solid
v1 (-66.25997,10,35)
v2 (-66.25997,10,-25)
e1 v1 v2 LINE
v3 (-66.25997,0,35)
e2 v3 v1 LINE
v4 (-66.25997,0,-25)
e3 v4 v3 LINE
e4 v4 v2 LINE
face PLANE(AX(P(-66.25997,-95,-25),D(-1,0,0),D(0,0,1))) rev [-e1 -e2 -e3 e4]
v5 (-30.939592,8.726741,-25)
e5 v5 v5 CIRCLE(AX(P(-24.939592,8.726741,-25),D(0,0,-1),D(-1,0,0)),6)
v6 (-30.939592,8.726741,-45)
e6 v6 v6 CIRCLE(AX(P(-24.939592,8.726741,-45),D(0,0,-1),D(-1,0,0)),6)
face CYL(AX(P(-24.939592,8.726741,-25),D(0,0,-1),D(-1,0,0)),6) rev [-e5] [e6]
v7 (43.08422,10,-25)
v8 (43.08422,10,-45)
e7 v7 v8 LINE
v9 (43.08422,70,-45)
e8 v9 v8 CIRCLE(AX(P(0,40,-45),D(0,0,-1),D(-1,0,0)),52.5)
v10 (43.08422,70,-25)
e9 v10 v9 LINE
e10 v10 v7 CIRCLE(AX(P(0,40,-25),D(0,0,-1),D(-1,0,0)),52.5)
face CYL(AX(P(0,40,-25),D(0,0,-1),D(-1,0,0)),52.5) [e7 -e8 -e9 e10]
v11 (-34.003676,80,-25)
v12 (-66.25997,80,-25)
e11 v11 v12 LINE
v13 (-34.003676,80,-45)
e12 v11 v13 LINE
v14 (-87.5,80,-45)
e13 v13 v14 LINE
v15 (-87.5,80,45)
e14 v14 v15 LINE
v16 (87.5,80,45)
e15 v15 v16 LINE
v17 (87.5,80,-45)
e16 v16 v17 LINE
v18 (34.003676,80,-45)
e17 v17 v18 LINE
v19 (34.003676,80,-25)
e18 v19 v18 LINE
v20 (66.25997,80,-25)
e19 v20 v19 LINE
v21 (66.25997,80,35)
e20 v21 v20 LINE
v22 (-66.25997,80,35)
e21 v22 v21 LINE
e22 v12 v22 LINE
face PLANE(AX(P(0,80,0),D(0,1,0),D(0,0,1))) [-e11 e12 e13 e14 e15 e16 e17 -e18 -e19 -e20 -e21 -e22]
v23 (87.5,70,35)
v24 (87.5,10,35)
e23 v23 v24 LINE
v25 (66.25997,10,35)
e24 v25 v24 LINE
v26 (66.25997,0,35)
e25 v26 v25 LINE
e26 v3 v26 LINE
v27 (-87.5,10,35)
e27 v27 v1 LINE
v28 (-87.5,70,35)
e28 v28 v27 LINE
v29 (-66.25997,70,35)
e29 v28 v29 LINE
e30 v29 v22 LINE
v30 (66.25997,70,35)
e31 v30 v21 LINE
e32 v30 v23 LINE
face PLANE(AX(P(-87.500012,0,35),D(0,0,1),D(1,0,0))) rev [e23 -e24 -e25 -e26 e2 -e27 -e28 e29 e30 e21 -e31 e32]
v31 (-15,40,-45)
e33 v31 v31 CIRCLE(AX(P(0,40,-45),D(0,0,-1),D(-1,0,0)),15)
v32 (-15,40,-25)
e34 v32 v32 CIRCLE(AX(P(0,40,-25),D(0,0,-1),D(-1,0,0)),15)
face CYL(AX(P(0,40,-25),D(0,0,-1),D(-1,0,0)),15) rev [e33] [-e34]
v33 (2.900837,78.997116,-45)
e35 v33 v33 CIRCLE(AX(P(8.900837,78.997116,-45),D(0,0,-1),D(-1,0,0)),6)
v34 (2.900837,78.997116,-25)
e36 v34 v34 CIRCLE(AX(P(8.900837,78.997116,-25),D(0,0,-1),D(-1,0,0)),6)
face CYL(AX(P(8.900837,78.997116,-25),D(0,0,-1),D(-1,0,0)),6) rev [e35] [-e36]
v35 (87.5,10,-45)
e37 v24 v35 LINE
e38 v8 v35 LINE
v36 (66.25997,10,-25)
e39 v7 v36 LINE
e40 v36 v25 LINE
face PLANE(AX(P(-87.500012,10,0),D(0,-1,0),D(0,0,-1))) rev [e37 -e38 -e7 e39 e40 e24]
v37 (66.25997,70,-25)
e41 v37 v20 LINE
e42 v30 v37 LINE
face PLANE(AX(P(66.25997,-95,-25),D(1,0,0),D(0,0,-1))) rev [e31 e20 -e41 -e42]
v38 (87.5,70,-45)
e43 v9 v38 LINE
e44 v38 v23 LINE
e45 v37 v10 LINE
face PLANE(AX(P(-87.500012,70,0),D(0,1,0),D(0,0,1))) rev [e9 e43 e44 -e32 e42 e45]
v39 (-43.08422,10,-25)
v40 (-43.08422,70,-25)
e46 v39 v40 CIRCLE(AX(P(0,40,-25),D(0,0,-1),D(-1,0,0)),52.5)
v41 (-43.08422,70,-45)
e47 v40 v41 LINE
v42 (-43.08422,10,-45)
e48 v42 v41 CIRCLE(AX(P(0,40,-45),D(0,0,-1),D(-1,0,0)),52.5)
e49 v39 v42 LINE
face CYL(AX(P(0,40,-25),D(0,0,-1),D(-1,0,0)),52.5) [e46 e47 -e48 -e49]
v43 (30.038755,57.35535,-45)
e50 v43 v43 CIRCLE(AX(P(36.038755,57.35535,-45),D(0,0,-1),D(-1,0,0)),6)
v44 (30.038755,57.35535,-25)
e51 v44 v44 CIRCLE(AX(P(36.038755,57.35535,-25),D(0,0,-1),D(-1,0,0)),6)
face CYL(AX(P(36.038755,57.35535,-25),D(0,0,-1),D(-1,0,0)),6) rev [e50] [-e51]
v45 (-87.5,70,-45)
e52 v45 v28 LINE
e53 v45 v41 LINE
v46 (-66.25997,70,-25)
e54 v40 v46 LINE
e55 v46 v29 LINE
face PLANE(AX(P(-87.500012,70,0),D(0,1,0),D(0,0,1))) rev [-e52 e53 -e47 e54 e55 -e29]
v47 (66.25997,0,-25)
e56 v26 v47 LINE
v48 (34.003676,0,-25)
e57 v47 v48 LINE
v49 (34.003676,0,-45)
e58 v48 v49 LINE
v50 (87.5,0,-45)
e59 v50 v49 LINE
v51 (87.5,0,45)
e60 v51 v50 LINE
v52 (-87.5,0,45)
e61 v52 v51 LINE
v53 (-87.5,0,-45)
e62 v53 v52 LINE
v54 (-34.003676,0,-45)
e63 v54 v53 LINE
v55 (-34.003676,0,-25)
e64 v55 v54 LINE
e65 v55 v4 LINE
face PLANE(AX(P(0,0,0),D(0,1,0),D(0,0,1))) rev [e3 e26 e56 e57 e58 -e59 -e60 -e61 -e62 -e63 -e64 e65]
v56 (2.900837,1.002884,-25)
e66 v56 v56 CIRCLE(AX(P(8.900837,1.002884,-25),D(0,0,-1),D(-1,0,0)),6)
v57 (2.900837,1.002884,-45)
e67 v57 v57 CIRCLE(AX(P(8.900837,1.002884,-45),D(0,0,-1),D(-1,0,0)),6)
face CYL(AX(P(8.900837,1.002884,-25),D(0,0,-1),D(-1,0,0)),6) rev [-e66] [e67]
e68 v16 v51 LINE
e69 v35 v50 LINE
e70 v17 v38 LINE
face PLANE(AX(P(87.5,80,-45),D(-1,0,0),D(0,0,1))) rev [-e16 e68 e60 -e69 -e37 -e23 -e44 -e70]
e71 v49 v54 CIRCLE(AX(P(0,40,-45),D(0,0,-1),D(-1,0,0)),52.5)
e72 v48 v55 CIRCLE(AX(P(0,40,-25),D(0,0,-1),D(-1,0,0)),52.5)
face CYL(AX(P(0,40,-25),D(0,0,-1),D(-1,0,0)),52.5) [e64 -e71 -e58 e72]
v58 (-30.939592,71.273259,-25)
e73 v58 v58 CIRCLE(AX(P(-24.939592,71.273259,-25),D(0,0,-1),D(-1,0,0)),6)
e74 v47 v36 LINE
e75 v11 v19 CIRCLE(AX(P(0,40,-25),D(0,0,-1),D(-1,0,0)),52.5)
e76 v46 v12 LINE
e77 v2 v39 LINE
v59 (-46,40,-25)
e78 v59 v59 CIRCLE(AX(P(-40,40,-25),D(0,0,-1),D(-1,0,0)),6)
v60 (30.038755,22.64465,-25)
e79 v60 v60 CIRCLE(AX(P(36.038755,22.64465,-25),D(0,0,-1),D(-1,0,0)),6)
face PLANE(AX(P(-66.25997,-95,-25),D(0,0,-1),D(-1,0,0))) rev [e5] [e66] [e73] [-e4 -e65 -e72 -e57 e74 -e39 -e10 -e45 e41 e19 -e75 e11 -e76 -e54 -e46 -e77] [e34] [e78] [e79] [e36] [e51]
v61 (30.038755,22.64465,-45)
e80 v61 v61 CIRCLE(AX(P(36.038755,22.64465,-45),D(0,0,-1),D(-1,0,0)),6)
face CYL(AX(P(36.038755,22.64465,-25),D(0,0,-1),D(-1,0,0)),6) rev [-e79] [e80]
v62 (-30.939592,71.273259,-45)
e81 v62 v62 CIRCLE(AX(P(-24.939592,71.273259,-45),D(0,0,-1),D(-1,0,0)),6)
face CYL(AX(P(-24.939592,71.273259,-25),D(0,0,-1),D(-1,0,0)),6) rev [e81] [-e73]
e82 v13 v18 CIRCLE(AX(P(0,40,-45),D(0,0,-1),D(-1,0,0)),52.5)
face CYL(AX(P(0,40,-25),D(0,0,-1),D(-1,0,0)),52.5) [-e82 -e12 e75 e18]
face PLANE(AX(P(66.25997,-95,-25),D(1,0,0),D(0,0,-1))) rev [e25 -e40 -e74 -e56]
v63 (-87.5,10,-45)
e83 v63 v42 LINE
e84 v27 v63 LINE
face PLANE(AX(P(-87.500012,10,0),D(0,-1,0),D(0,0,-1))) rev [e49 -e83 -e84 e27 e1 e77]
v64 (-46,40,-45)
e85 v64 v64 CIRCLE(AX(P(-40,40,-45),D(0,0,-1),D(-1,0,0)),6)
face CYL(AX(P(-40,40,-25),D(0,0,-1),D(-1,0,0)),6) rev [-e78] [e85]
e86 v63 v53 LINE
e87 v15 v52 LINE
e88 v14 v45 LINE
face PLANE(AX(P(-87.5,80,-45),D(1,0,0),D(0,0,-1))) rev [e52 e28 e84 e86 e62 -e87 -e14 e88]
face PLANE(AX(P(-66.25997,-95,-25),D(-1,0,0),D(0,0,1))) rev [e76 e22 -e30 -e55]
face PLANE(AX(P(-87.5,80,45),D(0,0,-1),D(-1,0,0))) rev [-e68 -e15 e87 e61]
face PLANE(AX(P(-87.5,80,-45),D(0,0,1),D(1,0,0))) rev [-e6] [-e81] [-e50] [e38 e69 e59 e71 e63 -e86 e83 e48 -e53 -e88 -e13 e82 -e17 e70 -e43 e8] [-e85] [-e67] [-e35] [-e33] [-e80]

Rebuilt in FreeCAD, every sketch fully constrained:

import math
import FreeCAD as App
import Part
import Sketcher

V = App.Vector
Q = App.Units.Quantity

doc = App.newDocument("Part")
body = doc.addObject("PartDesign::Body", "Body")

# Sketch on XZ plane
sketch1 = body.newObject("Sketcher::SketchObject", "Sketch")
sketch1.AttachmentSupport = (doc.getObject("XZ_Plane"), [""])
sketch1.MapMode = "FlatFace"
sketch1.addGeometry(Part.LineSegment(V(-87.5, -45, 0), V(-87.5, 45, 0)), False)
sketch1.addGeometry(Part.LineSegment(V(-87.5, 45, 0), V(87.5, 45, 0)), False)
sketch1.addGeometry(Part.LineSegment(V(87.5, 45, 0), V(87.5, -45, 0)), False)
sketch1.addGeometry(Part.LineSegment(V(87.5, -45, 0), V(-87.5, -45, 0)), False)
sketch1.addConstraint(Sketcher.Constraint("Coincident", 0, 2, 1, 1))
sketch1.addConstraint(Sketcher.Constraint("Coincident", 1, 2, 2, 1))
sketch1.addConstraint(Sketcher.Constraint("Coincident", 2, 2, 3, 1))
sketch1.addConstraint(Sketcher.Constraint("Coincident", 3, 2, 0, 1))
sketch1.addConstraint(Sketcher.Constraint("Vertical", 0))
sketch1.addConstraint(Sketcher.Constraint("Horizontal", 1))
sketch1.addConstraint(Sketcher.Constraint("Vertical", 2))
sketch1.addConstraint(Sketcher.Constraint("Horizontal", 3))
sketch1.addConstraint(Sketcher.Constraint("Symmetric", 0, 2, 2, 2, -1, 1))
sketch1.addConstraint(Sketcher.Constraint("DistanceX", 1, 1, 1, 2, Q("175 mm")))
sketch1.addConstraint(Sketcher.Constraint("DistanceY", 0, 1, 0, 2, Q("90 mm")))
pad1 = body.newObject("PartDesign::Pad", "Pad")
pad1.Profile = sketch1
pad1.Length = 80
pad1.Reversed = True

# Sketch on YZ plane
sketch2 = body.newObject("Sketcher::SketchObject", "Sketch001")
sketch2.AttachmentSupport = (doc.getObject("YZ_Plane"), [""])
sketch2.MapMode = "FlatFace"
sketch2.AttachmentOffset = App.Placement(V(0, 0, -87.5), App.Rotation())
sketch2.addGeometry(Part.LineSegment(V(70, 35, 0), V(70, -45, 0)), False)
sketch2.addGeometry(Part.LineSegment(V(70, -45, 0), V(10, -45, 0)), False)
sketch2.addGeometry(Part.LineSegment(V(10, -45, 0), V(10, 35, 0)), False)
sketch2.addGeometry(Part.LineSegment(V(10, 35, 0), V(70, 35, 0)), False)
sketch2.addConstraint(Sketcher.Constraint("Coincident", 0, 2, 1, 1))
sketch2.addConstraint(Sketcher.Constraint("Coincident", 1, 2, 2, 1))
sketch2.addConstraint(Sketcher.Constraint("Coincident", 2, 2, 3, 1))
sketch2.addConstraint(Sketcher.Constraint("Coincident", 3, 2, 0, 1))
sketch2.addConstraint(Sketcher.Constraint("Vertical", 0))
sketch2.addConstraint(Sketcher.Constraint("Horizontal", 1))
sketch2.addConstraint(Sketcher.Constraint("Vertical", 2))
sketch2.addConstraint(Sketcher.Constraint("Horizontal", 3))
sketch2.addConstraint(Sketcher.Constraint("DistanceX", 1, 2, 1, 1, Q("60 mm")))
sketch2.addConstraint(Sketcher.Constraint("DistanceY", 0, 2, 0, 1, Q("80 mm")))
sketch2.addConstraint(Sketcher.Constraint("DistanceX", -1, 1, 0, 2, Q("70 mm")))
sketch2.addConstraint(Sketcher.Constraint("DistanceY", 0, 2, -1, 1, Q("45 mm")))
pocket1 = body.newObject("PartDesign::Pocket", "Pocket")
pocket1.Profile = sketch2
pocket1.Type = "ThroughAll"
pocket1.Midplane = True

# Sketch on XZ plane
sketch3 = body.newObject("Sketcher::SketchObject", "Sketch002")
sketch3.AttachmentSupport = (doc.getObject("XZ_Plane"), [""])
sketch3.MapMode = "FlatFace"
sketch3.AttachmentOffset = App.Placement(V(0, 0, -80), App.Rotation())
sketch3.addGeometry(Part.LineSegment(V(-66.25997, -25, 0), V(-66.25997, 35, 0)), False)
sketch3.addGeometry(Part.LineSegment(V(-66.25997, 35, 0), V(66.25997, 35, 0)), False)
sketch3.addGeometry(Part.LineSegment(V(66.25997, 35, 0), V(66.25997, -25, 0)), False)
sketch3.addGeometry(Part.LineSegment(V(66.25997, -25, 0), V(-66.25997, -25, 0)), False)
sketch3.addConstraint(Sketcher.Constraint("Coincident", 0, 2, 1, 1))
sketch3.addConstraint(Sketcher.Constraint("Coincident", 1, 2, 2, 1))
sketch3.addConstraint(Sketcher.Constraint("Coincident", 2, 2, 3, 1))
sketch3.addConstraint(Sketcher.Constraint("Coincident", 3, 2, 0, 1))
sketch3.addConstraint(Sketcher.Constraint("Vertical", 0))
sketch3.addConstraint(Sketcher.Constraint("Horizontal", 1))
sketch3.addConstraint(Sketcher.Constraint("Vertical", 2))
sketch3.addConstraint(Sketcher.Constraint("Horizontal", 3))
sketch3.addConstraint(Sketcher.Constraint("DistanceY", 0, 1, 0, 2, Q("60 mm")))
sketch3.addConstraint(Sketcher.Constraint("DistanceY", -1, 1, 0, 2, Q("35 mm")))
sketch3.addConstraint(Sketcher.Constraint("DistanceX", 1, 1, 1, 2, Q("132.519941 mm")))
sketch3.addConstraint(Sketcher.Constraint("DistanceX", 0, 2, -1, 1, Q("66.25997 mm")))
pocket2 = body.newObject("PartDesign::Pocket", "Pocket001")
pocket2.Profile = sketch3
pocket2.Length = 175
pocket2.Reversed = True

# Sketch on XY plane
sketch4 = body.newObject("Sketcher::SketchObject", "Sketch003")
sketch4.AttachmentSupport = (doc.getObject("XY_Plane"), [""])
sketch4.MapMode = "FlatFace"
sketch4.AttachmentOffset = App.Placement(V(0, 0, -45), App.Rotation())
sketch4.addGeometry(Part.LineSegment(V(87.5, 0, 0), V(34.003676, 0, 0)), False)
sketch4.addGeometry(Part.ArcOfCircle(Part.Circle(V(0, 40, 0), V(0, 0, 1), 52.5), math.radians(-130.367594), math.radians(-49.632406)), False)
sketch4.addGeometry(Part.LineSegment(V(-34.003676, 0, 0), V(-87.5, 0, 0)), False)
sketch4.addGeometry(Part.LineSegment(V(-87.5, 0, 0), V(-87.5, 10, 0)), False)
sketch4.addGeometry(Part.LineSegment(V(-87.5, 10, 0), V(-43.08422, 10, 0)), False)
sketch4.addGeometry(Part.ArcOfCircle(Part.Circle(V(0, 40, 0), V(0, 0, 1), 52.5), math.radians(145.150095), math.radians(214.849905)), False)
sketch4.addGeometry(Part.LineSegment(V(-43.08422, 70, 0), V(-87.5, 70, 0)), False)
sketch4.addGeometry(Part.LineSegment(V(-87.5, 70, 0), V(-87.5, 80, 0)), False)
sketch4.addGeometry(Part.LineSegment(V(-87.5, 80, 0), V(-34.003676, 80, 0)), False)
sketch4.addGeometry(Part.ArcOfCircle(Part.Circle(V(0, 40, 0), V(0, 0, 1), 52.5), math.radians(49.632406), math.radians(130.367594)), False)
sketch4.addGeometry(Part.LineSegment(V(34.003676, 80, 0), V(87.5, 80, 0)), False)
sketch4.addGeometry(Part.LineSegment(V(87.5, 80, 0), V(87.5, 70, 0)), False)
sketch4.addGeometry(Part.LineSegment(V(87.5, 70, 0), V(43.08422, 70, 0)), False)
sketch4.addGeometry(Part.ArcOfCircle(Part.Circle(V(0, 40, 0), V(0, 0, 1), 52.5), math.radians(-34.849905), math.radians(34.849905)), False)
sketch4.addGeometry(Part.LineSegment(V(43.08422, 10, 0), V(87.5, 10, 0)), False)
sketch4.addGeometry(Part.LineSegment(V(87.5, 10, 0), V(87.5, 0, 0)), False)
sketch4.addConstraint(Sketcher.Constraint("Coincident", 0, 2, 1, 2))
sketch4.addConstraint(Sketcher.Constraint("Coincident", 1, 1, 2, 1))
sketch4.addConstraint(Sketcher.Constraint("Coincident", 2, 2, 3, 1))
sketch4.addConstraint(Sketcher.Constraint("Coincident", 3, 2, 4, 1))
sketch4.addConstraint(Sketcher.Constraint("Coincident", 4, 2, 5, 2))
sketch4.addConstraint(Sketcher.Constraint("Coincident", 5, 1, 6, 1))
sketch4.addConstraint(Sketcher.Constraint("Coincident", 6, 2, 7, 1))
sketch4.addConstraint(Sketcher.Constraint("Coincident", 7, 2, 8, 1))
sketch4.addConstraint(Sketcher.Constraint("Coincident", 8, 2, 9, 2))
sketch4.addConstraint(Sketcher.Constraint("Coincident", 9, 1, 10, 1))
sketch4.addConstraint(Sketcher.Constraint("Coincident", 10, 2, 11, 1))
sketch4.addConstraint(Sketcher.Constraint("Coincident", 11, 2, 12, 1))
sketch4.addConstraint(Sketcher.Constraint("Coincident", 12, 2, 13, 2))
sketch4.addConstraint(Sketcher.Constraint("Coincident", 13, 1, 14, 1))
sketch4.addConstraint(Sketcher.Constraint("Coincident", 14, 2, 15, 1))
sketch4.addConstraint(Sketcher.Constraint("Coincident", 15, 2, 0, 1))
sketch4.addConstraint(Sketcher.Constraint("Horizontal", 0))
sketch4.addConstraint(Sketcher.Constraint("Horizontal", 2))
sketch4.addConstraint(Sketcher.Constraint("Vertical", 3))
sketch4.addConstraint(Sketcher.Constraint("Horizontal", 4))
sketch4.addConstraint(Sketcher.Constraint("Horizontal", 6))
sketch4.addConstraint(Sketcher.Constraint("Vertical", 7))
sketch4.addConstraint(Sketcher.Constraint("Horizontal", 8))
sketch4.addConstraint(Sketcher.Constraint("Horizontal", 10))
sketch4.addConstraint(Sketcher.Constraint("Vertical", 11))
sketch4.addConstraint(Sketcher.Constraint("Horizontal", 12))
sketch4.addConstraint(Sketcher.Constraint("Horizontal", 14))
sketch4.addConstraint(Sketcher.Constraint("Vertical", 15))
sketch4.addConstraint(Sketcher.Constraint("Coincident", 5, 3, 1, 3))
sketch4.addConstraint(Sketcher.Constraint("Coincident", 9, 3, 1, 3))
sketch4.addConstraint(Sketcher.Constraint("Coincident", 13, 3, 1, 3))
sketch4.addConstraint(Sketcher.Constraint("Equal", 1, 5))
sketch4.addConstraint(Sketcher.Constraint("Equal", 5, 9))
sketch4.addConstraint(Sketcher.Constraint("Equal", 9, 13))
sketch4.addConstraint(Sketcher.Constraint("Symmetric", 0, 2, 1, 1, -1, 1))
sketch4.addConstraint(Sketcher.Constraint("Symmetric", 8, 2, 9, 1, -2))
sketch4.addConstraint(Sketcher.Constraint("Symmetric", 6, 2, 11, 2, -2))
sketch4.addConstraint(Sketcher.Constraint("Symmetric", 3, 2, 14, 2, -2))
sketch4.addConstraint(Sketcher.Constraint("Vertical", 4, 2, 5, 1))
sketch4.addConstraint(Sketcher.Constraint("Vertical", 3, 2, 6, 2))
sketch4.addConstraint(Sketcher.Constraint("Vertical", 1, 1, 8, 2))
sketch4.addConstraint(Sketcher.Constraint("Radius", 1, Q("52.5 mm")))
sketch4.addConstraint(Sketcher.Constraint("DistanceY", 3, 1, 3, 2, Q("10 mm")))
sketch4.addConstraint(Sketcher.Constraint("DistanceY", -1, 1, 1, 3, Q("40 mm")))
sketch4.addConstraint(Sketcher.Constraint("DistanceX", 2, 2, -1, 1, Q("87.5 mm")))
pad2 = body.newObject("PartDesign::Pad", "Pad001")
pad2.Profile = sketch4
pad2.Length = 20

# Sketch on XY plane
sketch5 = body.newObject("Sketcher::SketchObject", "Sketch004")
sketch5.AttachmentSupport = (doc.getObject("XY_Plane"), [""])
sketch5.MapMode = "FlatFace"
sketch5.AttachmentOffset = App.Placement(V(0, 0, -45), App.Rotation())
sketch5.addGeometry(Part.Circle(V(0, 40, 0), V(0, 0, 1), 15), False)
sketch5.addGeometry(Part.Circle(V(-40, 40, 0), V(0, 0, 1), 6), False)
sketch5.addGeometry(Part.Circle(V(-24.939592, 8.726741, 0), V(0, 0, 1), 6), False)
sketch5.addGeometry(Part.Circle(V(8.900837, 1.002884, 0), V(0, 0, 1), 6), False)
sketch5.addGeometry(Part.Circle(V(36.038755, 22.64465, 0), V(0, 0, 1), 6), False)
sketch5.addGeometry(Part.Circle(V(36.038755, 57.35535, 0), V(0, 0, 1), 6), False)
sketch5.addGeometry(Part.Circle(V(8.900837, 78.997116, 0), V(0, 0, 1), 6), False)
sketch5.addGeometry(Part.Circle(V(-24.939592, 71.273259, 0), V(0, 0, 1), 6), False)
sketch5.addConstraint(Sketcher.Constraint("Equal", 1, 2))
sketch5.addConstraint(Sketcher.Constraint("Equal", 2, 3))
sketch5.addConstraint(Sketcher.Constraint("Equal", 3, 4))
sketch5.addConstraint(Sketcher.Constraint("Equal", 4, 5))
sketch5.addConstraint(Sketcher.Constraint("Equal", 5, 6))
sketch5.addConstraint(Sketcher.Constraint("Equal", 6, 7))
sketch5.addConstraint(Sketcher.Constraint("PointOnObject", 0, 3, -2))
sketch5.addConstraint(Sketcher.Constraint("Horizontal", 0, 3, 1, 3))
sketch5.addConstraint(Sketcher.Constraint("Vertical", 4, 3, 5, 3))
sketch5.addConstraint(Sketcher.Constraint("Vertical", 3, 3, 6, 3))
sketch5.addConstraint(Sketcher.Constraint("Vertical", 2, 3, 7, 3))
sketch5.addConstraint(Sketcher.Constraint("Diameter", 0, Q("30 mm")))
sketch5.addConstraint(Sketcher.Constraint("Diameter", 1, Q("12 mm")))
sketch5.addConstraint(Sketcher.Constraint("DistanceY", -1, 1, 0, 3, Q("40 mm")))
sketch5.addConstraint(Sketcher.Constraint("DistanceX", 1, 3, -1, 1, Q("40 mm")))
sketch5.addConstraint(Sketcher.Constraint("DistanceY", 4, 3, 5, 3, Q("34.710699 mm")))
sketch5.addConstraint(Sketcher.Constraint("DistanceY", -1, 1, 2, 3, Q("8.726741 mm")))
sketch5.addConstraint(Sketcher.Constraint("DistanceY", -1, 1, 4, 3, Q("22.64465 mm")))
sketch5.addConstraint(Sketcher.Constraint("DistanceY", -1, 1, 7, 3, Q("71.273259 mm")))
sketch5.addConstraint(Sketcher.Constraint("DistanceX", 2, 3, 3, 3, Q("33.840429 mm")))
sketch5.addConstraint(Sketcher.Constraint("DistanceX", 2, 3, -1, 1, Q("24.939592 mm")))
sketch5.addConstraint(Sketcher.Constraint("DistanceY", -1, 1, 3, 3, Q("1.002884 mm")))
sketch5.addConstraint(Sketcher.Constraint("DistanceX", -1, 1, 4, 3, Q("36.038755 mm")))
sketch5.addConstraint(Sketcher.Constraint("DistanceY", -1, 1, 6, 3, Q("78.997116 mm")))
pocket3 = body.newObject("PartDesign::Pocket", "Pocket002")
pocket3.Profile = sketch5
pocket3.Length = 20
pocket3.Reversed = True

doc.recompute()
